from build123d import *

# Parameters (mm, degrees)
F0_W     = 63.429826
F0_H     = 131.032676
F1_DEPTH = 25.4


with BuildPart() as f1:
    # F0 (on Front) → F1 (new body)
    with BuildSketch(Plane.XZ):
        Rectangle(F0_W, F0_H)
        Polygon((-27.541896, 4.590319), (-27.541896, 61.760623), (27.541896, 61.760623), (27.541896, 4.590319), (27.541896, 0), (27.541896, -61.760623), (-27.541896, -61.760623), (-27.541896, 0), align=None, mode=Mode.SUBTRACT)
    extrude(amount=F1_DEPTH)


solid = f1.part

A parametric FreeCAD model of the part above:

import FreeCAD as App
import Part
import Sketcher
from FreeCAD import Vector
Q = App.Units.Quantity


def add_polygon(sketch, points):
    """Adds a closed chain of lines whose ends are joined by coincident constraints."""
    first, n = sketch.GeometryCount, len(points)
    for a, b in zip(points, points[1:] + points[:1]):
        sketch.addGeometry(Part.LineSegment(App.Vector(*a, 0), App.Vector(*b, 0)), False)
    for i in range(n):
        sketch.addConstraint(Sketcher.Constraint("Coincident", first + i, 2, first + (i + 1) % n, 1))

doc = App.newDocument("Part")
body = doc.addObject("PartDesign::Body", "Body")

# Sketch on XZ plane
sketch1 = body.newObject("Sketcher::SketchObject", "Sketch")
sketch1.AttachmentSupport = (doc.getObject("XZ_Plane"), [""])
sketch1.MapMode = "FlatFace"
add_polygon(sketch1, [(-32, 66), (-32, -66), (32, -66), (32, 66)])  # lines 0-3
add_polygon(sketch1, [(-28, -62), (-28, 62), (28, 62), (28, -62)])  # lines 4-7
sketch1.addConstraint([
    Sketcher.Constraint("Vertical", 0),
    Sketcher.Constraint("Horizontal", 1),
    Sketcher.Constraint("Vertical", 2),
    Sketcher.Constraint("Horizontal", 3),
    Sketcher.Constraint("Vertical", 4),
    Sketcher.Constraint("Horizontal", 5),
    Sketcher.Constraint("Vertical", 6),
    Sketcher.Constraint("Horizontal", 7),
    Sketcher.Constraint("Symmetric", 0, 2, 2, 2, -1, 1),
    Sketcher.Constraint("Symmetric", 4, 2, 6, 2, -1, 1),
    Sketcher.Constraint("DistanceX", 1, 1, 1, 2, Q("63.429826 mm")),
    Sketcher.Constraint("DistanceX", 5, 1, 5, 2, Q("55.083792 mm")),
    Sketcher.Constraint("DistanceY", 0, 2, 0, 1, Q("131.032676 mm")),
    Sketcher.Constraint("DistanceY", 4, 1, 4, 2, Q("123.521246 mm")),
])
pad1 = body.newObject("PartDesign::Pad", "Pad")
pad1.Profile = sketch1
pad1.Length = Q("1 in")

doc.recompute()
